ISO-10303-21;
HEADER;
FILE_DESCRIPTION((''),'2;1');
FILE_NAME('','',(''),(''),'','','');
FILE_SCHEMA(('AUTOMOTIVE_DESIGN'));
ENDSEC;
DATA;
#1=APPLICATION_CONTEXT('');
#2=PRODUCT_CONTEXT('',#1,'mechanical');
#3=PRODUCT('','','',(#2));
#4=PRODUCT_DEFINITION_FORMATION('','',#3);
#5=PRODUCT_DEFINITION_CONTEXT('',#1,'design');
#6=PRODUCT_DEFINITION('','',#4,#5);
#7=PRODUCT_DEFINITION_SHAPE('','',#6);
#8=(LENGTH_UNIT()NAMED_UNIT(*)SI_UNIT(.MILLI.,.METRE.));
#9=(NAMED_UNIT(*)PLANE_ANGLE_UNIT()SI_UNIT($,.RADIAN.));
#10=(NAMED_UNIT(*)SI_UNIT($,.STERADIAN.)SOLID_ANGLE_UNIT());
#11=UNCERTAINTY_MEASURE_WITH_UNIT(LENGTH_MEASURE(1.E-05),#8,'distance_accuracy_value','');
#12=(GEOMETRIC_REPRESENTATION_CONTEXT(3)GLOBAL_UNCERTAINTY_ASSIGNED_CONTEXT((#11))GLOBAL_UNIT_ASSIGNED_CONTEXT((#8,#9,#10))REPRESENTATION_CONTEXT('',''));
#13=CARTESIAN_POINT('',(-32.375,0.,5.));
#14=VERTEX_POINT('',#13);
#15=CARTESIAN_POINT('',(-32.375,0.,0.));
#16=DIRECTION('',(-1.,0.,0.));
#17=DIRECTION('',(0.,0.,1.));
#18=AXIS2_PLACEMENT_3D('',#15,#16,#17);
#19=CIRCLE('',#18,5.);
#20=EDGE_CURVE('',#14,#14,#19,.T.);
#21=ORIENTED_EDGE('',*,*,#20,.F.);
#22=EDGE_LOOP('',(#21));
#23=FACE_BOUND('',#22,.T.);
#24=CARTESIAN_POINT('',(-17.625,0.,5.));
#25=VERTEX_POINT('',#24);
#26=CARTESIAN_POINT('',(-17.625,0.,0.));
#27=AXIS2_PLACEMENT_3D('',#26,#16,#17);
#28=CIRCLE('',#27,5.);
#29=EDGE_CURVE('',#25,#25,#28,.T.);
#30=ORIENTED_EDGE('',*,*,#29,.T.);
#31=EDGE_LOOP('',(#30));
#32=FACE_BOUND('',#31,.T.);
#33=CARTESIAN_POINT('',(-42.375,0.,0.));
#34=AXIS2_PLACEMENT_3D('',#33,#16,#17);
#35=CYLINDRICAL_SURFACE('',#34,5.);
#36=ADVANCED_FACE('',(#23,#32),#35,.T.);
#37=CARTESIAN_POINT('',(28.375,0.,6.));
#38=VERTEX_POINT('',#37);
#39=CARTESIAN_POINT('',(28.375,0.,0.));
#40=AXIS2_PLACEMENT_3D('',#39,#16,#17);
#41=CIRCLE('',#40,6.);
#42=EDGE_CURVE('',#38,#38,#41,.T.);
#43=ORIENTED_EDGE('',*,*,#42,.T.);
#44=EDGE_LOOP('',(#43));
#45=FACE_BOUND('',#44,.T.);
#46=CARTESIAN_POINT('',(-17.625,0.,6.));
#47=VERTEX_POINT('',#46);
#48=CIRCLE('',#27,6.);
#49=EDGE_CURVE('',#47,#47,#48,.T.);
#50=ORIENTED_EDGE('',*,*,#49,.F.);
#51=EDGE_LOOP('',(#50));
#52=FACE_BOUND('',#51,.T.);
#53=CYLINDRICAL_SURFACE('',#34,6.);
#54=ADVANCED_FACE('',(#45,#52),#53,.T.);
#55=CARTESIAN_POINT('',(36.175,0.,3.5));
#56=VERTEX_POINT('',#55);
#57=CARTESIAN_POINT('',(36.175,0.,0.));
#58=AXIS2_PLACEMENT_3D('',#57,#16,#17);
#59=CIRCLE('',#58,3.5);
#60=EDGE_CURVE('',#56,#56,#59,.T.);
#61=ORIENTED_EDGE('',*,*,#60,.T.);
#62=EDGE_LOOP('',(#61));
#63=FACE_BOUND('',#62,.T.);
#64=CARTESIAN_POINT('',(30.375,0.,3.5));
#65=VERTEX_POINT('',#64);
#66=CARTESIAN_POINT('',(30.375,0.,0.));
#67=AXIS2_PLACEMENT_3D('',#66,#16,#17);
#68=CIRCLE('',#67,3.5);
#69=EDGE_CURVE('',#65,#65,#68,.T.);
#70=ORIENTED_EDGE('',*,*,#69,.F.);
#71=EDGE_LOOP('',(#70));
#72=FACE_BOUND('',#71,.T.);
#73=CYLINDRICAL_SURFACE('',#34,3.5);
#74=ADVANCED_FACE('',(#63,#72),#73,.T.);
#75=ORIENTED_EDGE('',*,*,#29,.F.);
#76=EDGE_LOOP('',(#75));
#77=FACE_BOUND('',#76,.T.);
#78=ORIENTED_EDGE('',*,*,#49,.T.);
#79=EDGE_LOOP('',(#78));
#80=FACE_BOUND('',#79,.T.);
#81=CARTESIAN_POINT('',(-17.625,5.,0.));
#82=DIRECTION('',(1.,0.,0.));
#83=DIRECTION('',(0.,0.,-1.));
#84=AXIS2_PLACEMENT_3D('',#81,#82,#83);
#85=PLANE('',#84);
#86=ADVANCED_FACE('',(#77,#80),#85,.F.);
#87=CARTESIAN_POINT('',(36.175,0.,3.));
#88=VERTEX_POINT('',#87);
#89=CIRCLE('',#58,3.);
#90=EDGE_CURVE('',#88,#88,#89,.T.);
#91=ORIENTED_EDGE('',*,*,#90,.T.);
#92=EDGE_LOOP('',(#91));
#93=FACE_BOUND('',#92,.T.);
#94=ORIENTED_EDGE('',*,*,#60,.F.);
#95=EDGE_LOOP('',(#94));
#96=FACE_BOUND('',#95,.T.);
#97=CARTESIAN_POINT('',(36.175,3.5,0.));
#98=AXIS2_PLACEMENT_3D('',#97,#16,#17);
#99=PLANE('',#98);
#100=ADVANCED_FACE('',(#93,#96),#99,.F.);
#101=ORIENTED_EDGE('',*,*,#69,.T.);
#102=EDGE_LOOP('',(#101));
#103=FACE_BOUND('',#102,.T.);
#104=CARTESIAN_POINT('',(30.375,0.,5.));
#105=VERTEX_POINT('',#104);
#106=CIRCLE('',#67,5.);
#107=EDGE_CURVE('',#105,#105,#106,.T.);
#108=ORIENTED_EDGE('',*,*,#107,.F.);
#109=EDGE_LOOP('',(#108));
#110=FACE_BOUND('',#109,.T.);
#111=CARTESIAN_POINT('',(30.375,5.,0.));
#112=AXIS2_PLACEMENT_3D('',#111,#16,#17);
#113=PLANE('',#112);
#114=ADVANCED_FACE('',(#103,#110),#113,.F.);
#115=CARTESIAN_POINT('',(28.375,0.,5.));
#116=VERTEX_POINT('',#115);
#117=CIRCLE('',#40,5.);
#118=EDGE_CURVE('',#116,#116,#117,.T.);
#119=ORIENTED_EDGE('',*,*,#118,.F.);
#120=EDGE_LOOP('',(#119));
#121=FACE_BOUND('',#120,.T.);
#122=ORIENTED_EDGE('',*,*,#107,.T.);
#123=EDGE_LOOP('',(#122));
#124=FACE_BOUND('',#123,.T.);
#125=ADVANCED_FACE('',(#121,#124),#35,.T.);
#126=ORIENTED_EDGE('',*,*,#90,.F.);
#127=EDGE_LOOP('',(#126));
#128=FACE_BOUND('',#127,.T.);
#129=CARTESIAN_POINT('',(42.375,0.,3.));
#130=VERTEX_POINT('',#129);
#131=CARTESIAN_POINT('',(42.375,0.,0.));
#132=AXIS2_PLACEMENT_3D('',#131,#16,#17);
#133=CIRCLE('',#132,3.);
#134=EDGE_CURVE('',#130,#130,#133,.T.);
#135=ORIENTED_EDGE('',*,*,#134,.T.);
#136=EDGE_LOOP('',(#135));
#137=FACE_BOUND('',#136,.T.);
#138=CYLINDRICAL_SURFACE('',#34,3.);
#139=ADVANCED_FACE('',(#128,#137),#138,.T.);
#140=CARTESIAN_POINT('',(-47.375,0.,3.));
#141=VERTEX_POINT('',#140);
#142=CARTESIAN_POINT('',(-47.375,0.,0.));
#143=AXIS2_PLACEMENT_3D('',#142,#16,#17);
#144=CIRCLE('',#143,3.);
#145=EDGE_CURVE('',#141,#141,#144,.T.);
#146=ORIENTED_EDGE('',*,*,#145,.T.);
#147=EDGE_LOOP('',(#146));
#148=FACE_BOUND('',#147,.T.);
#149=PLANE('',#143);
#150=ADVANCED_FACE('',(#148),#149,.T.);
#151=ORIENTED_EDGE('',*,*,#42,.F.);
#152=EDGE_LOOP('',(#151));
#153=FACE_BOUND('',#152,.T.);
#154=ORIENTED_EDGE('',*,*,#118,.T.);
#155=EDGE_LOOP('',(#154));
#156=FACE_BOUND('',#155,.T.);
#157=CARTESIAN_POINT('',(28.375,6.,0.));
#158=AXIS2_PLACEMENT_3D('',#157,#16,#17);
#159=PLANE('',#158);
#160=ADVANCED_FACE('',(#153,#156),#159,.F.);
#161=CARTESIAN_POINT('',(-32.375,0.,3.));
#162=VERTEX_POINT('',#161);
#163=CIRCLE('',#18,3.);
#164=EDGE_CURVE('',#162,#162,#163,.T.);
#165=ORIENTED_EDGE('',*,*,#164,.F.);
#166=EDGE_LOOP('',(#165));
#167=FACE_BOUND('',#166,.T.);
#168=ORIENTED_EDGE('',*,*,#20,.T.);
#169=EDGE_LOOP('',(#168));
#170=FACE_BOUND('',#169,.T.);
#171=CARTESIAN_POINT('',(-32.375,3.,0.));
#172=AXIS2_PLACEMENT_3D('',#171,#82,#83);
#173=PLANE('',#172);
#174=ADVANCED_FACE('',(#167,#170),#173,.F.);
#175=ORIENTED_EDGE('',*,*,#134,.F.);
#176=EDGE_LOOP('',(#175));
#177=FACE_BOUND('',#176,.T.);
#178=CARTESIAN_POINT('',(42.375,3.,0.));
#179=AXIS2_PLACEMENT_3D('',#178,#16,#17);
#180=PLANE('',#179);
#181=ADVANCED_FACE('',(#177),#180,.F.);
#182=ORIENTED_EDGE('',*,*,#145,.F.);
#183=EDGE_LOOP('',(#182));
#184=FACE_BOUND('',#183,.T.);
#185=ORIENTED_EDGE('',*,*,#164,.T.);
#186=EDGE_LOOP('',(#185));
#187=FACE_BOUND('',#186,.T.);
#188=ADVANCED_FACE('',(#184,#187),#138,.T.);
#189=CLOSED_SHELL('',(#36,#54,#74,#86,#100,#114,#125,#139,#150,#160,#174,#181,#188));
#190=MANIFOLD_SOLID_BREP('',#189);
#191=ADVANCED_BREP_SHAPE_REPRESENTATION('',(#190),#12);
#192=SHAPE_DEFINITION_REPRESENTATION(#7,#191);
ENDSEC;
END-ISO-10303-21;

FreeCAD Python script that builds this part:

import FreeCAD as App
import Part
import Sketcher
from FreeCAD import Vector

doc = App.newDocument("Part")
body = doc.addObject("PartDesign::Body", "Body")

# Sketch on XY plane
sketch1 = body.newObject("Sketcher::SketchObject", "Sketch")
sketch1.AttachmentSupport = (doc.getObject("XY_Plane"), [""])
sketch1.MapMode = "FlatFace"
sketch1.addGeometry([
    Part.LineSegment(Vector(-42.4, 0, 0), Vector(42.4, 0, 0)),  # 0
    Part.LineSegment(Vector(42.4, 0, 0), Vector(42.4, 3, 0)),  # 1
    Part.LineSegment(Vector(42.4, 3, 0), Vector(36.2, 3, 0)),  # 2
    Part.LineSegment(Vector(36.2, 3, 0), Vector(36.2, 3.5, 0)),  # 3
    Part.LineSegment(Vector(36.2, 3.5, 0), Vector(30.4, 3.5, 0)),  # 4
    Part.LineSegment(Vector(30.4, 3.5, 0), Vector(30.4, 5, 0)),  # 5
    Part.LineSegment(Vector(30.4, 5, 0), Vector(28.4, 5, 0)),  # 6
    Part.LineSegment(Vector(28.4, 5, 0), Vector(28.4, 6, 0)),  # 7
    Part.LineSegment(Vector(28.4, 6, 0), Vector(-17.6, 6, 0)),  # 8
    Part.LineSegment(Vector(-17.6, 6, 0), Vector(-17.6, 5, 0)),  # 9
    Part.LineSegment(Vector(-17.6, 5, 0), Vector(-32.4, 5, 0)),  # 10
    Part.LineSegment(Vector(-32.4, 5, 0), Vector(-32.4, 3, 0)),  # 11
    Part.LineSegment(Vector(-32.4, 3, 0), Vector(-42.4, 3, 0)),  # 12
    Part.LineSegment(Vector(-42.4, 3, 0), Vector(-42.4, 0, 0)),  # 13
], False)
sketch1.addConstraint([
    Sketcher.Constraint("Coincident", 0, 2, 1, 1),
    Sketcher.Constraint("Coincident", 1, 2, 2, 1),
    Sketcher.Constraint("Coincident", 2, 2, 3, 1),
    Sketcher.Constraint("Coincident", 3, 2, 4, 1),
    Sketcher.Constraint("Coincident", 4, 2, 5, 1),
    Sketcher.Constraint("Coincident", 5, 2, 6, 1),
    Sketcher.Constraint("Coincident", 6, 2, 7, 1),
    Sketcher.Constraint("Coincident", 7, 2, 8, 1),
    Sketcher.Constraint("Coincident", 8, 2, 9, 1),
    Sketcher.Constraint("Coincident", 9, 2, 10, 1),
    Sketcher.Constraint("Coincident", 10, 2, 11, 1),
    Sketcher.Constraint("Coincident", 11, 2, 12, 1),
    Sketcher.Constraint("Coincident", 12, 2, 13, 1),
    Sketcher.Constraint("Coincident", 13, 2, 0, 1),
    Sketcher.Constraint("Horizontal", 0),
    Sketcher.Constraint("Vertical", 1),
    Sketcher.Constraint("Horizontal", 2),
    Sketcher.Constraint("Vertical", 3),
    Sketcher.Constraint("Horizontal", 4),
    Sketcher.Constraint("Vertical", 5),
    Sketcher.Constraint("Horizontal", 6),
    Sketcher.Constraint("Vertical", 7),
    Sketcher.Constraint("Horizontal", 8),
    Sketcher.Constraint("Vertical", 9),
    Sketcher.Constraint("Horizontal", 10),
    Sketcher.Constraint("Vertical", 11),
    Sketcher.Constraint("Horizontal", 12),
    Sketcher.Constraint("Vertical", 13),
    Sketcher.Constraint("Symmetric", 0, 2, 13, 2, -1, 1),
    Sketcher.Constraint("Horizontal", 6, 2, 9, 2),
    Sketcher.Constraint("Horizontal", 2, 2, 11, 2),
    Sketcher.Constraint("Equal", 6, 11),
    Sketcher.Constraint("DistanceX", 6, 2, 6, 1, 2.0),
    Sketcher.Constraint("DistanceX", 8, 2, 8, 1, 46.0),
    Sketcher.Constraint("DistanceX", 12, 2, 12, 1, 10.0),
    Sketcher.Constraint("DistanceY", 1, 1, 1, 2, 3.0),
    Sketcher.Constraint("DistanceY", 7, 1, 7, 2, 1.0),
    Sketcher.Constraint("DistanceX", 2, 2, 2, 1, 6.2),
    Sketcher.Constraint("DistanceX", 4, 2, 4, 1, 5.8),
    Sketcher.Constraint("DistanceY", 3, 1, 3, 2, 0.5),
    Sketcher.Constraint("DistanceX", 0, 1, 0, 2, 84.75),
])
revolution = body.newObject("PartDesign::Revolution", "Revolution")
revolution.Profile = sketch1
revolution.ReferenceAxis = (sketch1, ["H_Axis"])
revolution.Angle = 360

# Sketch on YZ plane
sketch2 = body.newObject("Sketcher::SketchObject", "Sketch001")
sketch2.AttachmentSupport = (doc.getObject("YZ_Plane"), [""])
sketch2.MapMode = "FlatFace"
sketch2.AttachmentOffset = App.Placement(Vector(0, 0, -47.375), App.Rotation())
sketch2.addGeometry(Part.Circle(Vector(0, 0, 0), Vector(0, 0, 1), 3), False)
sketch2.addConstraint([
    Sketcher.Constraint("Coincident", 0, 3, -1, 1),
    Sketcher.Constraint("Diameter", 0, 6.0),
])
pad1 = body.newObject("PartDesign::Pad", "Pad")
pad1.Profile = sketch2
pad1.Length = 5

doc.recompute()
